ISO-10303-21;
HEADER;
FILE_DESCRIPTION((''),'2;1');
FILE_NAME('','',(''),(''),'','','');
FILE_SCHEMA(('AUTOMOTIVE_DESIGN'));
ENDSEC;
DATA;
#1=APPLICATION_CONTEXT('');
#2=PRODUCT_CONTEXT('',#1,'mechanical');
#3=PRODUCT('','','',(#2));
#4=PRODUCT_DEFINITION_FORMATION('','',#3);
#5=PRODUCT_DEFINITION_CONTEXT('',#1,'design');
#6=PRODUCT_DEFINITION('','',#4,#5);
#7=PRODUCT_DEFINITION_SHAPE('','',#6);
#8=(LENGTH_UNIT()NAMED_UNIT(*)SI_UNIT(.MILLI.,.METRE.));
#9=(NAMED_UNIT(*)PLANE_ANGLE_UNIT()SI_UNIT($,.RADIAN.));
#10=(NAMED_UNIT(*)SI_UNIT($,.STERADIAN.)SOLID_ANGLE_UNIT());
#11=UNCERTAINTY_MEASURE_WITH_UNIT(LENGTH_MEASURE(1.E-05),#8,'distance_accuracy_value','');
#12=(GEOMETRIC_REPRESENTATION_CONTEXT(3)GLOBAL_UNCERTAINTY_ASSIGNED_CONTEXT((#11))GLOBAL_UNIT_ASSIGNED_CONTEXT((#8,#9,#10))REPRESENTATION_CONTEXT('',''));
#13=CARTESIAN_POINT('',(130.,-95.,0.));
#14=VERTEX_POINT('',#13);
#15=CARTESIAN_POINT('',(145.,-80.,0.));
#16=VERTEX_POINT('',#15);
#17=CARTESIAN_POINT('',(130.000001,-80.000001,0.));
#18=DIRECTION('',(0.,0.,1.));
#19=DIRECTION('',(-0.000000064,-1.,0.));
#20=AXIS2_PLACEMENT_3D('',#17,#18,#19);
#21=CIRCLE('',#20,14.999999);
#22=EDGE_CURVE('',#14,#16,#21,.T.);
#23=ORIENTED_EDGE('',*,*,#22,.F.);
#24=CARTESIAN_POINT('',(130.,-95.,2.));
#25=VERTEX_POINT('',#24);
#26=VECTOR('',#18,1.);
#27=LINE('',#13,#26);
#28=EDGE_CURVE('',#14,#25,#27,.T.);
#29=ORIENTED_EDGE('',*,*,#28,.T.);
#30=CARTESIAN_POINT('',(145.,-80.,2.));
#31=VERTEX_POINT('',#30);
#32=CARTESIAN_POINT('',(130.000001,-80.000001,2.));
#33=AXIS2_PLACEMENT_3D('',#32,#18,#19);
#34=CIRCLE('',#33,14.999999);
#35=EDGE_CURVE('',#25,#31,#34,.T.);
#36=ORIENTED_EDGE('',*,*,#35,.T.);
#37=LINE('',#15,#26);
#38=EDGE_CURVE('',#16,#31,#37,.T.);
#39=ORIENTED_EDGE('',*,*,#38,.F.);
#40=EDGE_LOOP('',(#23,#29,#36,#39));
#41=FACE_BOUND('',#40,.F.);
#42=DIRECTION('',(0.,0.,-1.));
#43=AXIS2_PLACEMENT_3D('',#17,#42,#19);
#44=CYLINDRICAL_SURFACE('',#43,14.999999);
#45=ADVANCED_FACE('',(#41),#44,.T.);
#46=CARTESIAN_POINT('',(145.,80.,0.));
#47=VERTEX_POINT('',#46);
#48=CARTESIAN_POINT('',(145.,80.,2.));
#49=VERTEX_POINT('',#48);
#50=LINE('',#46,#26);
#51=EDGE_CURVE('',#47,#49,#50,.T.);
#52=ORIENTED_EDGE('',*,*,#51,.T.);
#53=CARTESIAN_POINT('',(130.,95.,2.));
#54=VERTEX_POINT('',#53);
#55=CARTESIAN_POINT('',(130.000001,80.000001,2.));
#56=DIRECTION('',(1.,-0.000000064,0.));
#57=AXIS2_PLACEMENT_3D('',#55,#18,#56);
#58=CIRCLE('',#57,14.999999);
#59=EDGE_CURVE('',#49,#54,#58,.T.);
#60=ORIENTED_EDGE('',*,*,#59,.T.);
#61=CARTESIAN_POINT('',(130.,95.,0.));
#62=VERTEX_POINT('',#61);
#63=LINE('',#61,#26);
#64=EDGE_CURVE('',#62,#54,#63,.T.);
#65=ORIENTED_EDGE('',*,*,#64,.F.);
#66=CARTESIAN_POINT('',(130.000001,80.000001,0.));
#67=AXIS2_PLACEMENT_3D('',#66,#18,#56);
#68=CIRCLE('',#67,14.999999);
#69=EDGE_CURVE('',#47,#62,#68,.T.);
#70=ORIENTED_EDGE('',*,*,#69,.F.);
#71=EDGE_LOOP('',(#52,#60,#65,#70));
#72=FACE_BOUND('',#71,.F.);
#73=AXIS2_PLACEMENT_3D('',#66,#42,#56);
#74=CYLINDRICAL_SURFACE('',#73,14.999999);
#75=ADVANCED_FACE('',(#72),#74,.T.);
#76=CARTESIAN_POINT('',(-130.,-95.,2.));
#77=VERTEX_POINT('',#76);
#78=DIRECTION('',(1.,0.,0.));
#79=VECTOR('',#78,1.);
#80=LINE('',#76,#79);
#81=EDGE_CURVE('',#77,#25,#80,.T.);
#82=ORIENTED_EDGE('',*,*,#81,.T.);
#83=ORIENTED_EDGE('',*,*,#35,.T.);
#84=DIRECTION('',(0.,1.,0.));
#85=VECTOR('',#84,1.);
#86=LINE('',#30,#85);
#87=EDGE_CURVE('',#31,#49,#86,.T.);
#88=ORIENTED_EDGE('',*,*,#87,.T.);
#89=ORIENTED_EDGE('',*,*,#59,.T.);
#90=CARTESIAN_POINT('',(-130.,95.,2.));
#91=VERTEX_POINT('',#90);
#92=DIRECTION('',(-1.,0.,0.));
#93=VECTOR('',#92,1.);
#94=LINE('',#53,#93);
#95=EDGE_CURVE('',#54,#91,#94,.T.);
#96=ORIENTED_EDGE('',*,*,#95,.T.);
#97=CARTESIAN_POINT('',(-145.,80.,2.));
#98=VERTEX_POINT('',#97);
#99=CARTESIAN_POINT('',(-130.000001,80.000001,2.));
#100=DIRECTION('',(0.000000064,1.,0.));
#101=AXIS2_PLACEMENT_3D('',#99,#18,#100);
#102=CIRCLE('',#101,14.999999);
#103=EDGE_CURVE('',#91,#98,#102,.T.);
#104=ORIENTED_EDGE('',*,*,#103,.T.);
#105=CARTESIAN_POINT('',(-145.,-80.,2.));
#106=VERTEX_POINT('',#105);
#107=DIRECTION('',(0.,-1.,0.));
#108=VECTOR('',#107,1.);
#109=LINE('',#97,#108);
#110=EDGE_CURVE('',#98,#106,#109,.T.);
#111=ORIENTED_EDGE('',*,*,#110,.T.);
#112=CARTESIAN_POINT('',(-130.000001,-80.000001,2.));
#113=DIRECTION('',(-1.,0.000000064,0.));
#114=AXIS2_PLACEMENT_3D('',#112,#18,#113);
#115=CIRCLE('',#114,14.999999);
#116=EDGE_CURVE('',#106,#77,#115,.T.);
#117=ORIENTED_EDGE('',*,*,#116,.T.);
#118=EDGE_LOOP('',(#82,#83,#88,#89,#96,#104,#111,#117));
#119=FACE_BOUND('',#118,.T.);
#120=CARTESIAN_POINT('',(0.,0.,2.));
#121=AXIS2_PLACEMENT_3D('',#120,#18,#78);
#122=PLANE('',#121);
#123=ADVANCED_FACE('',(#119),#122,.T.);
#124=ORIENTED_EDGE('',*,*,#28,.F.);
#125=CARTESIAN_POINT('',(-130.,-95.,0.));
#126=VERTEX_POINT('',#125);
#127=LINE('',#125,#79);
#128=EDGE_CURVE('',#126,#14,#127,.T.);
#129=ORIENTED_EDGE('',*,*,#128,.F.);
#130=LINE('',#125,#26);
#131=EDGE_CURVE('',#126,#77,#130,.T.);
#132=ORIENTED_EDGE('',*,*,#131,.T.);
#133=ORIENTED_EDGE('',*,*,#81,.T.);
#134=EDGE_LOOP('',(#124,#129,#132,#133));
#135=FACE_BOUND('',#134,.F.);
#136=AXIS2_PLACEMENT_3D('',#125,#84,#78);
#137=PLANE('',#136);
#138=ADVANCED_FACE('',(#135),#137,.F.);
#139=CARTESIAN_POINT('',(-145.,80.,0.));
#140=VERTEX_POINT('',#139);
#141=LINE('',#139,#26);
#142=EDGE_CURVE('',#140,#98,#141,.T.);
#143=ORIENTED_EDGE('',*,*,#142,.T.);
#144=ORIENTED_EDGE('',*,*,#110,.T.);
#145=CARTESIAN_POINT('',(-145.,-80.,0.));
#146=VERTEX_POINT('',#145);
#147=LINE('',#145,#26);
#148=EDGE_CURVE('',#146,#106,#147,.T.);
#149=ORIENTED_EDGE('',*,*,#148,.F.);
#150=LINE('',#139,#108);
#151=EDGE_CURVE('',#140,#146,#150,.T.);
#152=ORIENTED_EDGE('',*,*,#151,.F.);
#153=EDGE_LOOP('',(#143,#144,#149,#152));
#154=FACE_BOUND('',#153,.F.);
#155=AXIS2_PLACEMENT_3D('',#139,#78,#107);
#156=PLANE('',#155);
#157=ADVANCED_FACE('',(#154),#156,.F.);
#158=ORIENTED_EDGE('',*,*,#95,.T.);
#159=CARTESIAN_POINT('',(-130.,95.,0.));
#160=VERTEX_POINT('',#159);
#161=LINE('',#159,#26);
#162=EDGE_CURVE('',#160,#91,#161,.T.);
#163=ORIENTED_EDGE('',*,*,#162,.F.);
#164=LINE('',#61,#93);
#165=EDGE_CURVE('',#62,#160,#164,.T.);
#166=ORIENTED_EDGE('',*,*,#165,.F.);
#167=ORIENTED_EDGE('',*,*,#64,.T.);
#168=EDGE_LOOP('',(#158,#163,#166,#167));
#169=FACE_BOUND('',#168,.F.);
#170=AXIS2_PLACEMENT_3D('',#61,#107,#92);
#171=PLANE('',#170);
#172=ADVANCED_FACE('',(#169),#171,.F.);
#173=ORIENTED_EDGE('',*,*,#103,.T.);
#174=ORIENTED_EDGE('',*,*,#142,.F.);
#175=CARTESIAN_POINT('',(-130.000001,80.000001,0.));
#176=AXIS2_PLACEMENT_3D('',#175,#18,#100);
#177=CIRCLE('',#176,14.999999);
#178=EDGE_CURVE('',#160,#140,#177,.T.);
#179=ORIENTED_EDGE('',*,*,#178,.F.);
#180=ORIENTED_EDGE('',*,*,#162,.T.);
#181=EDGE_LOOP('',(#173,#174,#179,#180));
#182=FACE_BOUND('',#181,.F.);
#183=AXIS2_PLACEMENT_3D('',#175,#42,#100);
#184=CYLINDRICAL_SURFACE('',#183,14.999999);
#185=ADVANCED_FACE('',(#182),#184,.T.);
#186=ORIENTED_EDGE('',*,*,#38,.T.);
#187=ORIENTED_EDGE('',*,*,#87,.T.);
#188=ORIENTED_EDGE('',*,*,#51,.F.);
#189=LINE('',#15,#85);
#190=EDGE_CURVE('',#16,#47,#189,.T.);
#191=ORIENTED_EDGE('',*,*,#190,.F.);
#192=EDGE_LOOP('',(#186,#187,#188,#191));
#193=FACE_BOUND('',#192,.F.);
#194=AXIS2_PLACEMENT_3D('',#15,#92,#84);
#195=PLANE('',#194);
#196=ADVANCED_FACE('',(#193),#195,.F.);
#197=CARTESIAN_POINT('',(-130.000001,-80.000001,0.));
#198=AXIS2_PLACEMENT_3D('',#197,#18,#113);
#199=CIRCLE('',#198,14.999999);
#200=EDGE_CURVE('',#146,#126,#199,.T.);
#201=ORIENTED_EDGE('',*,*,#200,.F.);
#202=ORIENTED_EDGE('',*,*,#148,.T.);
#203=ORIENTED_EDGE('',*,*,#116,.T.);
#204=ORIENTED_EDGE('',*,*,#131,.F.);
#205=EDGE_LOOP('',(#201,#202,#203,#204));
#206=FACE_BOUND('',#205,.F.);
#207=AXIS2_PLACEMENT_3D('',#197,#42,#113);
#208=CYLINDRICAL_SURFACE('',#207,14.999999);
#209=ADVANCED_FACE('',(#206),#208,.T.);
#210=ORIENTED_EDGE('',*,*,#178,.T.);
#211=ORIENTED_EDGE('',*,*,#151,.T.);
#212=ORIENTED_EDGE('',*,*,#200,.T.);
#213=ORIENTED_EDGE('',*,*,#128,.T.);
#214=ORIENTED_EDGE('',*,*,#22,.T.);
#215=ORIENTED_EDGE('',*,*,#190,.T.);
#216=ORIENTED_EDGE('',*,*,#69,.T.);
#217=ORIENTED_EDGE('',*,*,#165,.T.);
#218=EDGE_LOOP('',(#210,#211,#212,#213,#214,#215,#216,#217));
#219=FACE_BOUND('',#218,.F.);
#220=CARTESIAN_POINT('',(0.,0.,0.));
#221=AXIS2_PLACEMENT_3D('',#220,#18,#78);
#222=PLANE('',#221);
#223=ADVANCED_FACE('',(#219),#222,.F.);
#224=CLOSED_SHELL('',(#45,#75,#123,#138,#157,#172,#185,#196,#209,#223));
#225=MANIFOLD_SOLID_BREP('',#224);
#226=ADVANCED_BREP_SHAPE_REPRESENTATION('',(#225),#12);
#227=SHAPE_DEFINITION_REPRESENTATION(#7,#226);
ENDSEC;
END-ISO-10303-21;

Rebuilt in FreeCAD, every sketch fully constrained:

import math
import FreeCAD as App
import Part
import Sketcher
from FreeCAD import Vector
Q = App.Units.Quantity

doc = App.newDocument("Part")
params = doc.addObject("Spreadsheet::Sheet", "Params")
for row, (alias, value) in enumerate([
    ("sketch1_radius", "14.999999 mm"),
    ("sketch1_width", "260 mm"),
    ("sketch1_height", "160 mm"),
    ("pad1_length", "2 mm"),
], start=1):
    params.set(f"A{row}", alias)
    params.set(f"B{row}", "=" + value)
    params.setAlias(f"B{row}", alias)

body = doc.addObject("PartDesign::Body", "Body")

# Sketch on XY plane
sketch1 = doc.addObject("Sketcher::SketchObject", "Sketch")
body.addObject(sketch1)
sketch1.AttachmentSupport = (doc.XY_Plane, [""])
sketch1.MapMode = "FlatFace"
sketch1.addGeometry(Part.ArcOfCircle(Part.Circle(Vector(-130, -80, 0), Vector(0, 0, 1), 15), math.radians(180), math.radians(270)), False)
sketch1.addGeometry(Part.LineSegment(Vector(-130, -95, 0), Vector(130, -95, 0)), False)
sketch1.addGeometry(Part.ArcOfCircle(Part.Circle(Vector(130, -80, 0), Vector(0, 0, 1), 15), math.radians(-90), math.radians(0)), False)
sketch1.addGeometry(Part.LineSegment(Vector(145, -80, 0), Vector(145, 80, 0)), False)
sketch1.addGeometry(Part.ArcOfCircle(Part.Circle(Vector(130, 80, 0), Vector(0, 0, 1), 15), math.radians(0), math.radians(90)), False)
sketch1.addGeometry(Part.LineSegment(Vector(130, 95, 0), Vector(-130, 95, 0)), False)
sketch1.addGeometry(Part.ArcOfCircle(Part.Circle(Vector(-130, 80, 0), Vector(0, 0, 1), 15), math.radians(90), math.radians(180)), False)
sketch1.addGeometry(Part.LineSegment(Vector(-145, 80, 0), Vector(-145, -80, 0)), False)
sketch1.addConstraint(Sketcher.Constraint("Tangent", 0, 2, 1, 1))
sketch1.addConstraint(Sketcher.Constraint("Tangent", 1, 2, 2, 1))
sketch1.addConstraint(Sketcher.Constraint("Tangent", 2, 2, 3, 1))
sketch1.addConstraint(Sketcher.Constraint("Tangent", 3, 2, 4, 1))
sketch1.addConstraint(Sketcher.Constraint("Tangent", 4, 2, 5, 1))
sketch1.addConstraint(Sketcher.Constraint("Tangent", 5, 2, 6, 1))
sketch1.addConstraint(Sketcher.Constraint("Tangent", 6, 2, 7, 1))
sketch1.addConstraint(Sketcher.Constraint("Tangent", 7, 2, 0, 1))
sketch1.addConstraint(Sketcher.Constraint("Horizontal", 1))
sketch1.addConstraint(Sketcher.Constraint("Vertical", 3))
sketch1.addConstraint(Sketcher.Constraint("Horizontal", 5))
sketch1.addConstraint(Sketcher.Constraint("Vertical", 7))
sketch1.addConstraint(Sketcher.Constraint("Equal", 0, 2))
sketch1.addConstraint(Sketcher.Constraint("Equal", 2, 4))
sketch1.addConstraint(Sketcher.Constraint("Equal", 4, 6))
sketch1.addConstraint(Sketcher.Constraint("Symmetric", 0, 3, 4, 3, -1, 1))
sketch1.addConstraint(Sketcher.Constraint("Radius", 0, Q("14.999999 mm")))
sketch1.addConstraint(Sketcher.Constraint("DistanceX", 1, 1, 1, 2, Q("260 mm")))
sketch1.addConstraint(Sketcher.Constraint("DistanceY", 3, 1, 3, 2, Q("160 mm")))
sketch1.setExpression("Constraints[16]", "Params.sketch1_radius")
sketch1.setExpression("Constraints[17]", "Params.sketch1_width")
sketch1.setExpression("Constraints[18]", "Params.sketch1_height")
pad1 = doc.addObject("PartDesign::Pad", "Pad")
body.addObject(pad1)
pad1.Profile = sketch1
pad1.setExpression("Length", "Params.pad1_length")

doc.recompute()
